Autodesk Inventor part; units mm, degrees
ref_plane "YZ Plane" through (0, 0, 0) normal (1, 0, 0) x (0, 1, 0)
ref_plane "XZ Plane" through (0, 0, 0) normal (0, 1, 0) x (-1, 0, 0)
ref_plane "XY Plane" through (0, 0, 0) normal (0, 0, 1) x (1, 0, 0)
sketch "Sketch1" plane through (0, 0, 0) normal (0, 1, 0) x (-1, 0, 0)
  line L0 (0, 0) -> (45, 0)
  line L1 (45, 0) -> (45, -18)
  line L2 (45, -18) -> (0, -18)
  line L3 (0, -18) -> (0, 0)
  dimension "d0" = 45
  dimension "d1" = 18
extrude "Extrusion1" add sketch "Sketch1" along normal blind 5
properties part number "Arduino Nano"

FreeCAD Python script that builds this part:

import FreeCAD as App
import Part
import Sketcher
Q = App.Units.Quantity

doc = App.newDocument("Part")
body = doc.addObject("PartDesign::Body", "Body")

sketch1 = doc.addObject("Sketcher::SketchObject", "Sketch")
body.addObject(sketch1)
sketch1.AttachmentSupport = (doc.XZ_Plane, [""])
sketch1.MapMode = "FlatFace"
sketch1.addGeometry(Part.LineSegment(App.Vector(-45, 0, 0), App.Vector(0, 0, 0)), False)
sketch1.addGeometry(Part.LineSegment(App.Vector(0, 0, 0), App.Vector(0, -18, 0)), False)
sketch1.addGeometry(Part.LineSegment(App.Vector(0, -18, 0), App.Vector(-45, -18, 0)), False)
sketch1.addGeometry(Part.LineSegment(App.Vector(-45, -18, 0), App.Vector(-45, 0, 0)), False)
sketch1.addConstraint(Sketcher.Constraint("Coincident", 0, 2, 1, 1))
sketch1.addConstraint(Sketcher.Constraint("Coincident", 1, 2, 2, 1))
sketch1.addConstraint(Sketcher.Constraint("Coincident", 2, 2, 3, 1))
sketch1.addConstraint(Sketcher.Constraint("Coincident", 3, 2, 0, 1))
sketch1.addConstraint(Sketcher.Constraint("Horizontal", 0))
sketch1.addConstraint(Sketcher.Constraint("Vertical", 1))
sketch1.addConstraint(Sketcher.Constraint("Horizontal", 2))
sketch1.addConstraint(Sketcher.Constraint("Vertical", 3))
sketch1.addConstraint(Sketcher.Constraint("Coincident", 0, 2, -1, 1))
sketch1.addConstraint(Sketcher.Constraint("DistanceX", 0, 1, 0, 2, Q("45 mm")))
sketch1.addConstraint(Sketcher.Constraint("DistanceY", 1, 2, 1, 1, Q("18 mm")))
pad1 = doc.addObject("PartDesign::Pad", "Pad")
body.addObject(pad1)
pad1.Profile = sketch1
pad1.Length = 5
pad1.Reversed = True

doc.recompute()
